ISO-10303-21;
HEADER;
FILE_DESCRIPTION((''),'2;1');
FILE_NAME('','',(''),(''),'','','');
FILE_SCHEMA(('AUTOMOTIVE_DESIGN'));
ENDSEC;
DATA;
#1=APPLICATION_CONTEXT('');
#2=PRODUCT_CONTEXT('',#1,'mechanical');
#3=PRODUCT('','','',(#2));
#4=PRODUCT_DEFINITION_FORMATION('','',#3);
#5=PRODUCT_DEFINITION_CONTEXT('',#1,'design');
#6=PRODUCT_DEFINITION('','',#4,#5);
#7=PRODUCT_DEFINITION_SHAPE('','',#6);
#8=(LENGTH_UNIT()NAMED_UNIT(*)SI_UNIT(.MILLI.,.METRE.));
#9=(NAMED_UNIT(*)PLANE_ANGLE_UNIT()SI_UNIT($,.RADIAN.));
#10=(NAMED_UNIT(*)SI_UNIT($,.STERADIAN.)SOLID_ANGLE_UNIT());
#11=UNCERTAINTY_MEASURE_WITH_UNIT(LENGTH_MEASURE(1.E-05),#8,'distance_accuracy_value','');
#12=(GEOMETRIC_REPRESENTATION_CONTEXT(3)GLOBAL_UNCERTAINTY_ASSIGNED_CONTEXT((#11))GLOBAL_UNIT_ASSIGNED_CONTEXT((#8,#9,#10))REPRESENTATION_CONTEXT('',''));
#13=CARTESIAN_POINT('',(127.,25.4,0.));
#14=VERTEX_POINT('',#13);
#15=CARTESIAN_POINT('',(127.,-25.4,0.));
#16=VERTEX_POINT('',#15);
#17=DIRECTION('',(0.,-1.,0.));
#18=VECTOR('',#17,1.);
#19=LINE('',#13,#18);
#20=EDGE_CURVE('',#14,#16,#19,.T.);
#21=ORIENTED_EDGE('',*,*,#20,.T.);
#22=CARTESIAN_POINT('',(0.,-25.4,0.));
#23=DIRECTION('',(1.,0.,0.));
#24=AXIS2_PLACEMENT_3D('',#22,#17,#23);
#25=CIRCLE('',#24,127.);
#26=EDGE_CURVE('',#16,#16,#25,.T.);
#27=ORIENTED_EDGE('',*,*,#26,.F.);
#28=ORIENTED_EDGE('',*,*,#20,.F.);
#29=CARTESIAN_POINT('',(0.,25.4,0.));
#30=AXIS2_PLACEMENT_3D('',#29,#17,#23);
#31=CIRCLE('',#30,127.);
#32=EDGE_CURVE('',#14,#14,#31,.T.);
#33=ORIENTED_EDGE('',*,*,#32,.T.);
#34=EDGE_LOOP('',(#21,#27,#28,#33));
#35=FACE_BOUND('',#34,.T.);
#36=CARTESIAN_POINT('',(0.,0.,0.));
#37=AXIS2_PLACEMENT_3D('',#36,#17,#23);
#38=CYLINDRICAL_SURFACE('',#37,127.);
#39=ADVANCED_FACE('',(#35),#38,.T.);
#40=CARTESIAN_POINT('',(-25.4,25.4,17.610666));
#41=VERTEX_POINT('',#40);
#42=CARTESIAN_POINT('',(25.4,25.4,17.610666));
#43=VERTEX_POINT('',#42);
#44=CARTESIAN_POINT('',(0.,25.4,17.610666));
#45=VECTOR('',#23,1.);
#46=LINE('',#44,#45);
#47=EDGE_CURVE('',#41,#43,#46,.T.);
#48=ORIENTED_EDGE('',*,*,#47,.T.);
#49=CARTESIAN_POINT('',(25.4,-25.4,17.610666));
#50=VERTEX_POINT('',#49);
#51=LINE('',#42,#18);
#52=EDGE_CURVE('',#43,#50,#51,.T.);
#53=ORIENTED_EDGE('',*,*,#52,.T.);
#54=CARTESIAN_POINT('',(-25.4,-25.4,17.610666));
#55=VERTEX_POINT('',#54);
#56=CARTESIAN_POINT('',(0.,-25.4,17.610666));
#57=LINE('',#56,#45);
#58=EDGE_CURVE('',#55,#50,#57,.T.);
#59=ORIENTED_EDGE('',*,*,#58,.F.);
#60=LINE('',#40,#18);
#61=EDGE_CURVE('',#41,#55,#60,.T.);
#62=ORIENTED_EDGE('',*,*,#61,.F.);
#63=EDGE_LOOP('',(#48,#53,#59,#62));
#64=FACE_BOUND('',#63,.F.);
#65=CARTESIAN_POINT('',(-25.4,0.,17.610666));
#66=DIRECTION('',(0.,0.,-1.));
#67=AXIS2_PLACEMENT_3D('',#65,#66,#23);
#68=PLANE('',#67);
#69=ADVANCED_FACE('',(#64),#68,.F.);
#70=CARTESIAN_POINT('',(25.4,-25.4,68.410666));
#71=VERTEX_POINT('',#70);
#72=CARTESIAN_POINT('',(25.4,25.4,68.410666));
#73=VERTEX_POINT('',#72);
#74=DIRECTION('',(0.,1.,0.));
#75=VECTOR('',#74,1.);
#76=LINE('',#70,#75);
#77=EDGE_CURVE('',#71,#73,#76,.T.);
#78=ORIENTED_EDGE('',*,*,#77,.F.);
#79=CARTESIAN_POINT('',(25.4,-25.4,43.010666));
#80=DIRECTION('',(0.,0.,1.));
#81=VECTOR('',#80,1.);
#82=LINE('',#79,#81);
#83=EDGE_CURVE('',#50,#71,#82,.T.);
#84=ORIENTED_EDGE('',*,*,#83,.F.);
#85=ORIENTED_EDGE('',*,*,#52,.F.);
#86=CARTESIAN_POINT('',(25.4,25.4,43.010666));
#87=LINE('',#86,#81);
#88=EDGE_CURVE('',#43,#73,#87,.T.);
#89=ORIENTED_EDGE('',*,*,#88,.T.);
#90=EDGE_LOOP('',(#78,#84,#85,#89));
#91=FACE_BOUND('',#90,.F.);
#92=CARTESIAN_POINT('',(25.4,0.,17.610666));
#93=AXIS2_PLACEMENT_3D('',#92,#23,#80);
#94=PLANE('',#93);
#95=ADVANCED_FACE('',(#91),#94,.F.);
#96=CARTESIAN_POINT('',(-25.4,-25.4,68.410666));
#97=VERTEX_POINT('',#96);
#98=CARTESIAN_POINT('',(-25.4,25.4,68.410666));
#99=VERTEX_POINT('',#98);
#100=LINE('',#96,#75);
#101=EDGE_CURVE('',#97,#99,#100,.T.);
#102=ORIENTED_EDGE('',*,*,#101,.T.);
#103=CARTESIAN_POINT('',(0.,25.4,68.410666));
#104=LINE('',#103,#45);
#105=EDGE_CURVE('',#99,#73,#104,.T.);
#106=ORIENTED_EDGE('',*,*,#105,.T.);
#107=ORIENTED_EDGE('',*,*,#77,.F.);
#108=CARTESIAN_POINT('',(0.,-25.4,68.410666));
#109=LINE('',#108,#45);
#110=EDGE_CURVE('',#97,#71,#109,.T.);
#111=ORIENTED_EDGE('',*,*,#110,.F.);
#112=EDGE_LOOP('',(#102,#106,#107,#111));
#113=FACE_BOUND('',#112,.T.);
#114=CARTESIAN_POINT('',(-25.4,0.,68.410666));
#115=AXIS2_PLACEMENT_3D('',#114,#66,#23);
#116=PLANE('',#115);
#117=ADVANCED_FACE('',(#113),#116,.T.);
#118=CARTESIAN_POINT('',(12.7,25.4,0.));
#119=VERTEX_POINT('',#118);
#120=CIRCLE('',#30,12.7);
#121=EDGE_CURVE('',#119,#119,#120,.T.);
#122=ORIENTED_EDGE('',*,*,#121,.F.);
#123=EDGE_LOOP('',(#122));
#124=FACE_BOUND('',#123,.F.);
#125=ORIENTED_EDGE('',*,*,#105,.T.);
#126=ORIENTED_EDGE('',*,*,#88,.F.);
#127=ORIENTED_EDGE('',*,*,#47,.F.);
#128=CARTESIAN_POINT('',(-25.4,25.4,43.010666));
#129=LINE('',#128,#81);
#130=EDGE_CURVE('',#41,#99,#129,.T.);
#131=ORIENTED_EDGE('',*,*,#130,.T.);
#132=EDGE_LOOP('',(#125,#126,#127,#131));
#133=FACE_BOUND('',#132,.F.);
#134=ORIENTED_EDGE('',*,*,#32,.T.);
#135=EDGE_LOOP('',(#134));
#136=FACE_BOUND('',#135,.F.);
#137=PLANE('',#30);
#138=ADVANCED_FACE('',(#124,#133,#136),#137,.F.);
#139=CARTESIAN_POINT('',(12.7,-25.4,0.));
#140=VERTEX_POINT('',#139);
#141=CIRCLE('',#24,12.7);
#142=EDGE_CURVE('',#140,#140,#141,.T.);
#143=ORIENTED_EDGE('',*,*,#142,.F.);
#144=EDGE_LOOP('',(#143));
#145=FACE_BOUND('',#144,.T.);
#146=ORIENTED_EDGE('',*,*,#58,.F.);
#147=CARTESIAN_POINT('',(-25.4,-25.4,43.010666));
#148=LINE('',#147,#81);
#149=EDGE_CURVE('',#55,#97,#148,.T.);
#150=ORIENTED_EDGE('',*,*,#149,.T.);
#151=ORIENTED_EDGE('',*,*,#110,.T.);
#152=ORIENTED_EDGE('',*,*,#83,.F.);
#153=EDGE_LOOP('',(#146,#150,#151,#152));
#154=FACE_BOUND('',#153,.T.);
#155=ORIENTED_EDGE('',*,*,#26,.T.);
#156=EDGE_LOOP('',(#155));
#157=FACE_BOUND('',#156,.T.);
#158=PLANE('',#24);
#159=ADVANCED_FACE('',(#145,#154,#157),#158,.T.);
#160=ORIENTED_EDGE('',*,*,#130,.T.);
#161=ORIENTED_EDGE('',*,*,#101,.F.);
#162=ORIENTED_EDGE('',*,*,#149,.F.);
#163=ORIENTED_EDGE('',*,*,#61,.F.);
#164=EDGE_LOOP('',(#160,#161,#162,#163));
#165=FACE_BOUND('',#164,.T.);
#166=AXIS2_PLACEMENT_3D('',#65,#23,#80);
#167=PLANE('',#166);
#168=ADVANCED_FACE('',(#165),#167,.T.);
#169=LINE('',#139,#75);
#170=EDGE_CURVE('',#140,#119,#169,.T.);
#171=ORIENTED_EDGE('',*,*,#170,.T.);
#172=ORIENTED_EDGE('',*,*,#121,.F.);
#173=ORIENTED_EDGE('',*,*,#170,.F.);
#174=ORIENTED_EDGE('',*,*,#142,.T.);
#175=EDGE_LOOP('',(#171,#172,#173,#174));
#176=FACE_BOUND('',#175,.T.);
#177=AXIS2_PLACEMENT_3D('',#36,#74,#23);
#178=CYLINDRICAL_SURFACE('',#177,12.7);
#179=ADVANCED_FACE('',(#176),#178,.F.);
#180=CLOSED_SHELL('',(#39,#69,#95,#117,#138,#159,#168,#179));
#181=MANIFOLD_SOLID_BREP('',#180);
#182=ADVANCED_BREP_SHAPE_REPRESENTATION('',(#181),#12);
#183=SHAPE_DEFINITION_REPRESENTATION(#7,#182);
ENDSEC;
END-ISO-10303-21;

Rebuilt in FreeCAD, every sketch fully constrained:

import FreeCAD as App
import Part
import Sketcher
from FreeCAD import Vector
Q = App.Units.Quantity

doc = App.newDocument("Part")
body = doc.addObject("PartDesign::Body", "Body")

sketch1 = body.newObject("Sketcher::SketchObject", "Sketch")
sketch1.AttachmentSupport = (doc.getObject("XZ_Plane"), [""])
sketch1.MapMode = "FlatFace"
sketch1.addGeometry([
    Part.Circle(Vector(0, 0, 0), Vector(0, 0, 1), 127),
    Part.Circle(Vector(0, 0, 0), Vector(0, 0, 1), 13),
], False)
sketch1.addConstraint([
    Sketcher.Constraint("Coincident", 0, 3, -1, 1),
    Sketcher.Constraint("Coincident", 1, 3, -1, 1),
    Sketcher.Constraint("Diameter", 0, Q("10 in")),
    Sketcher.Constraint("Diameter", 1, Q("1 in")),
])
pad1 = body.newObject("PartDesign::Pad", "Pad")
pad1.Profile = sketch1
pad1.Length = Q("2 in")
pad1.Midplane = True

sketch2 = body.newObject("Sketcher::SketchObject", "Sketch001")
sketch2.AttachmentSupport = (doc.getObject("XZ_Plane"), [""])
sketch2.MapMode = "FlatFace"
sketch2.addGeometry([
    Part.LineSegment(Vector(-25, 68, 0), Vector(-25, 18, 0)),
    Part.LineSegment(Vector(-25, 18, 0), Vector(25, 18, 0)),
    Part.LineSegment(Vector(25, 18, 0), Vector(25, 68, 0)),
    Part.LineSegment(Vector(25, 68, 0), Vector(-25, 68, 0)),
], False)
sketch2.addConstraint([
    Sketcher.Constraint("Coincident", 0, 2, 1, 1),
    Sketcher.Constraint("Coincident", 1, 2, 2, 1),
    Sketcher.Constraint("Coincident", 2, 2, 3, 1),
    Sketcher.Constraint("Coincident", 3, 2, 0, 1),
    Sketcher.Constraint("Vertical", 0),
    Sketcher.Constraint("Horizontal", 1),
    Sketcher.Constraint("Vertical", 2),
    Sketcher.Constraint("Horizontal", 3),
    Sketcher.Constraint("Equal", 3, 0),
    Sketcher.Constraint("DistanceX", 1, 1, 1, 2, Q("2 in")),
    Sketcher.Constraint("DistanceX", 0, 2, -1, 1, Q("1 in")),
    Sketcher.Constraint("DistanceY", -1, 1, 0, 2, Q("17.610666 mm")),
])
pocket1 = body.newObject("PartDesign::Pocket", "Pocket")
pocket1.Profile = sketch2
pocket1.Length = Q("2 in")
pocket1.Midplane = True

doc.recompute()
